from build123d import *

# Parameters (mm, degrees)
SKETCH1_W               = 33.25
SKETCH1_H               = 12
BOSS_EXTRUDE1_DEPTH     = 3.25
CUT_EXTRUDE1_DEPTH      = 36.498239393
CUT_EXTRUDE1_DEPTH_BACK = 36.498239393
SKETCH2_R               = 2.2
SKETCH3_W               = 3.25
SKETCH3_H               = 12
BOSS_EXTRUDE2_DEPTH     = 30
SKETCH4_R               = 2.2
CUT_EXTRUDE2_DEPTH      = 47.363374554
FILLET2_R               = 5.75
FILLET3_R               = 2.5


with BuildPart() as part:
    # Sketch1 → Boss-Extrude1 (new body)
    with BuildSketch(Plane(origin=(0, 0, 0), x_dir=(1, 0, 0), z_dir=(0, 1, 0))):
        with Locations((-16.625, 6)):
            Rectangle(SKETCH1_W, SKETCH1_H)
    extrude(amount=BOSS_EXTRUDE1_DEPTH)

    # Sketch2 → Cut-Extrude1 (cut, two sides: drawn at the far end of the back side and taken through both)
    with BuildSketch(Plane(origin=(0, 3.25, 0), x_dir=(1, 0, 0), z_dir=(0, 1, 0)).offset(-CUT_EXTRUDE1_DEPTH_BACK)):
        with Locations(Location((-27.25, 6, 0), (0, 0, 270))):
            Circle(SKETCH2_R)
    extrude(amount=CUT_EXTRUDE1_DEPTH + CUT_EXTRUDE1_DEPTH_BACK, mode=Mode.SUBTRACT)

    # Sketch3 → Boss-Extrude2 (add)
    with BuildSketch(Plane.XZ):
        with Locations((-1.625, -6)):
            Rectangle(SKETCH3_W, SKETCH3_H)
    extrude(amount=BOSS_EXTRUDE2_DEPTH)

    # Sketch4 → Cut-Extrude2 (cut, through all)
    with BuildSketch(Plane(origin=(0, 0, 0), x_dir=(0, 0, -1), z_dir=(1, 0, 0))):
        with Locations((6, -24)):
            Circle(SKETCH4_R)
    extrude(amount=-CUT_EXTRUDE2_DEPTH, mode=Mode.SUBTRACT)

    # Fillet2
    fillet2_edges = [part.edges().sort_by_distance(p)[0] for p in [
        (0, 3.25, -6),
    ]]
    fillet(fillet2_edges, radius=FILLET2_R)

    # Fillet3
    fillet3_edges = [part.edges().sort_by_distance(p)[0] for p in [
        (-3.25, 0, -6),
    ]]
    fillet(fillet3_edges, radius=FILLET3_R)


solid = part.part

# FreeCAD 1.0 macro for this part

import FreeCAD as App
import Part
import Sketcher
from FreeCAD import Vector
Q = App.Units.Quantity


def edges_at(feature, points):
    """Names of the edges that pass closest to the given points."""
    edges = feature.Shape.Edges
    near = lambda p: min(range(len(edges)), key=lambda i: edges[i].distToShape(Part.Vertex(*p))[0])
    return sorted({f"Edge{near(p) + 1}" for p in points})

doc = App.newDocument("Part")
params = doc.addObject("Spreadsheet::Sheet", "Params")
for row, (alias, value) in enumerate([
    ("sketch1_height", "12 mm"),
    ("sketch1_width", "33.25 mm"),
    ("pad1_length", "3.25 mm"),
    ("sketch2_diameter", "4.4 mm"),
    ("sketch3_height", "12 mm"),
    ("sketch3_width", "3.25 mm"),
    ("pad2_length", "30 mm"),
    ("sketch4_diameter", "4.4 mm"),
    ("fillet_radius", "5.75 mm"),
    ("fillet2_radius", "2.5 mm"),
], start=1):
    params.set(f"A{row}", alias)
    params.set(f"B{row}", "=" + value)
    params.setAlias(f"B{row}", alias)

body = doc.addObject("PartDesign::Body", "Body")

sketch1 = body.newObject("Sketcher::SketchObject", "Sketch")
sketch1.AttachmentSupport = (doc.getObject("XZ_Plane"), [""])
sketch1.MapMode = "FlatFace"
sketch1.addGeometry([
    Part.LineSegment(Vector(-33, -12, 0), Vector(-33, 0, 0)),
    Part.LineSegment(Vector(-33, 0, 0), Vector(0, 0, 0)),
    Part.LineSegment(Vector(0, 0, 0), Vector(0, -12, 0)),
    Part.LineSegment(Vector(0, -12, 0), Vector(-33, -12, 0)),
], False)
sketch1.addConstraint([
    Sketcher.Constraint("Coincident", 0, 2, 1, 1),
    Sketcher.Constraint("Coincident", 1, 2, 2, 1),
    Sketcher.Constraint("Coincident", 2, 2, 3, 1),
    Sketcher.Constraint("Coincident", 3, 2, 0, 1),
    Sketcher.Constraint("Vertical", 0),
    Sketcher.Constraint("Horizontal", 1),
    Sketcher.Constraint("Vertical", 2),
    Sketcher.Constraint("Horizontal", 3),
    Sketcher.Constraint("Coincident", 1, 2, -1, 1),
    Sketcher.Constraint("DistanceY", 0, 1, 0, 2, Q("12 mm")),
    Sketcher.Constraint("DistanceX", 1, 1, 1, 2, Q("33.25 mm")),
])
sketch1.setExpression("Constraints[9]", "Params.sketch1_height")
sketch1.setExpression("Constraints[10]", "Params.sketch1_width")
pad1 = body.newObject("PartDesign::Pad", "Pad")
pad1.Profile = sketch1
pad1.setExpression("Length", "Params.pad1_length")
pad1.Reversed = True

sketch2 = body.newObject("Sketcher::SketchObject", "Sketch001")
sketch2.AttachmentSupport = (doc.getObject("XZ_Plane"), [""])
sketch2.MapMode = "FlatFace"
sketch2.AttachmentOffset = App.Placement(Vector(0, 0, -3.25), App.Rotation())
sketch2.addGeometry(Part.Circle(Vector(-27.2, -6, 0), Vector(0, 0, 1), 2.2), False)
sketch2.addConstraint([
    Sketcher.Constraint("Diameter", 0, Q("4.4 mm")),
    Sketcher.Constraint("DistanceY", 0, 3, -1, 1, Q("6 mm")),
    Sketcher.Constraint("DistanceX", 0, 3, -1, 1, Q("27.25 mm")),
])
sketch2.setExpression("Constraints[0]", "Params.sketch2_diameter")
pocket1 = body.newObject("PartDesign::Pocket", "Pocket")
pocket1.Profile = sketch2
pocket1.Type = "ThroughAll"
pocket1.Midplane = True

sketch3 = body.newObject("Sketcher::SketchObject", "Sketch002")
sketch3.AttachmentSupport = (doc.getObject("XZ_Plane"), [""])
sketch3.MapMode = "FlatFace"
sketch3.addGeometry([
    Part.LineSegment(Vector(-3.2, 0, 0), Vector(-3.2, -12, 0)),
    Part.LineSegment(Vector(-3.2, -12, 0), Vector(0, -12, 0)),
    Part.LineSegment(Vector(0, -12, 0), Vector(0, 0, 0)),
    Part.LineSegment(Vector(0, 0, 0), Vector(-3.2, 0, 0)),
], False)
sketch3.addConstraint([
    Sketcher.Constraint("Coincident", 0, 2, 1, 1),
    Sketcher.Constraint("Coincident", 1, 2, 2, 1),
    Sketcher.Constraint("Coincident", 2, 2, 3, 1),
    Sketcher.Constraint("Coincident", 3, 2, 0, 1),
    Sketcher.Constraint("Vertical", 0),
    Sketcher.Constraint("Horizontal", 1),
    Sketcher.Constraint("Vertical", 2),
    Sketcher.Constraint("Horizontal", 3),
    Sketcher.Constraint("Coincident", 2, 2, -1, 1),
    Sketcher.Constraint("DistanceY", 0, 2, 0, 1, Q("12 mm")),
    Sketcher.Constraint("DistanceX", 1, 1, 1, 2, Q("3.25 mm")),
])
sketch3.setExpression("Constraints[9]", "Params.sketch3_height")
sketch3.setExpression("Constraints[10]", "Params.sketch3_width")
pad2 = body.newObject("PartDesign::Pad", "Pad001")
pad2.Profile = sketch3
pad2.setExpression("Length", "Params.pad2_length")

sketch4 = body.newObject("Sketcher::SketchObject", "Sketch003")
sketch4.AttachmentSupport = (doc.getObject("YZ_Plane"), [""])
sketch4.MapMode = "FlatFace"
sketch4.addGeometry(Part.Circle(Vector(-24, -6, 0), Vector(0, 0, 1), 2.2), False)
sketch4.addConstraint([
    Sketcher.Constraint("Diameter", 0, Q("4.4 mm")),
    Sketcher.Constraint("DistanceX", 0, 3, -1, 1, Q("24 mm")),
    Sketcher.Constraint("DistanceY", 0, 3, -1, 1, Q("6 mm")),
])
sketch4.setExpression("Constraints[0]", "Params.sketch4_diameter")
pocket2 = body.newObject("PartDesign::Pocket", "Pocket001")
pocket2.Profile = sketch4
pocket2.Type = "ThroughAll"
doc.recompute()

fillet = body.newObject("PartDesign::Fillet", "Fillet")
fillet.Base = (pocket2, edges_at(pocket2, [(0, 3.25, -6)]))
fillet.setExpression("Radius", "Params.fillet_radius")
doc.recompute()

fillet2 = body.newObject("PartDesign::Fillet", "Fillet001")
fillet2.Base = (fillet, edges_at(fillet, [(-3.25, 0, -6)]))
fillet2.setExpression("Radius", "Params.fillet2_radius")

doc.recompute()
